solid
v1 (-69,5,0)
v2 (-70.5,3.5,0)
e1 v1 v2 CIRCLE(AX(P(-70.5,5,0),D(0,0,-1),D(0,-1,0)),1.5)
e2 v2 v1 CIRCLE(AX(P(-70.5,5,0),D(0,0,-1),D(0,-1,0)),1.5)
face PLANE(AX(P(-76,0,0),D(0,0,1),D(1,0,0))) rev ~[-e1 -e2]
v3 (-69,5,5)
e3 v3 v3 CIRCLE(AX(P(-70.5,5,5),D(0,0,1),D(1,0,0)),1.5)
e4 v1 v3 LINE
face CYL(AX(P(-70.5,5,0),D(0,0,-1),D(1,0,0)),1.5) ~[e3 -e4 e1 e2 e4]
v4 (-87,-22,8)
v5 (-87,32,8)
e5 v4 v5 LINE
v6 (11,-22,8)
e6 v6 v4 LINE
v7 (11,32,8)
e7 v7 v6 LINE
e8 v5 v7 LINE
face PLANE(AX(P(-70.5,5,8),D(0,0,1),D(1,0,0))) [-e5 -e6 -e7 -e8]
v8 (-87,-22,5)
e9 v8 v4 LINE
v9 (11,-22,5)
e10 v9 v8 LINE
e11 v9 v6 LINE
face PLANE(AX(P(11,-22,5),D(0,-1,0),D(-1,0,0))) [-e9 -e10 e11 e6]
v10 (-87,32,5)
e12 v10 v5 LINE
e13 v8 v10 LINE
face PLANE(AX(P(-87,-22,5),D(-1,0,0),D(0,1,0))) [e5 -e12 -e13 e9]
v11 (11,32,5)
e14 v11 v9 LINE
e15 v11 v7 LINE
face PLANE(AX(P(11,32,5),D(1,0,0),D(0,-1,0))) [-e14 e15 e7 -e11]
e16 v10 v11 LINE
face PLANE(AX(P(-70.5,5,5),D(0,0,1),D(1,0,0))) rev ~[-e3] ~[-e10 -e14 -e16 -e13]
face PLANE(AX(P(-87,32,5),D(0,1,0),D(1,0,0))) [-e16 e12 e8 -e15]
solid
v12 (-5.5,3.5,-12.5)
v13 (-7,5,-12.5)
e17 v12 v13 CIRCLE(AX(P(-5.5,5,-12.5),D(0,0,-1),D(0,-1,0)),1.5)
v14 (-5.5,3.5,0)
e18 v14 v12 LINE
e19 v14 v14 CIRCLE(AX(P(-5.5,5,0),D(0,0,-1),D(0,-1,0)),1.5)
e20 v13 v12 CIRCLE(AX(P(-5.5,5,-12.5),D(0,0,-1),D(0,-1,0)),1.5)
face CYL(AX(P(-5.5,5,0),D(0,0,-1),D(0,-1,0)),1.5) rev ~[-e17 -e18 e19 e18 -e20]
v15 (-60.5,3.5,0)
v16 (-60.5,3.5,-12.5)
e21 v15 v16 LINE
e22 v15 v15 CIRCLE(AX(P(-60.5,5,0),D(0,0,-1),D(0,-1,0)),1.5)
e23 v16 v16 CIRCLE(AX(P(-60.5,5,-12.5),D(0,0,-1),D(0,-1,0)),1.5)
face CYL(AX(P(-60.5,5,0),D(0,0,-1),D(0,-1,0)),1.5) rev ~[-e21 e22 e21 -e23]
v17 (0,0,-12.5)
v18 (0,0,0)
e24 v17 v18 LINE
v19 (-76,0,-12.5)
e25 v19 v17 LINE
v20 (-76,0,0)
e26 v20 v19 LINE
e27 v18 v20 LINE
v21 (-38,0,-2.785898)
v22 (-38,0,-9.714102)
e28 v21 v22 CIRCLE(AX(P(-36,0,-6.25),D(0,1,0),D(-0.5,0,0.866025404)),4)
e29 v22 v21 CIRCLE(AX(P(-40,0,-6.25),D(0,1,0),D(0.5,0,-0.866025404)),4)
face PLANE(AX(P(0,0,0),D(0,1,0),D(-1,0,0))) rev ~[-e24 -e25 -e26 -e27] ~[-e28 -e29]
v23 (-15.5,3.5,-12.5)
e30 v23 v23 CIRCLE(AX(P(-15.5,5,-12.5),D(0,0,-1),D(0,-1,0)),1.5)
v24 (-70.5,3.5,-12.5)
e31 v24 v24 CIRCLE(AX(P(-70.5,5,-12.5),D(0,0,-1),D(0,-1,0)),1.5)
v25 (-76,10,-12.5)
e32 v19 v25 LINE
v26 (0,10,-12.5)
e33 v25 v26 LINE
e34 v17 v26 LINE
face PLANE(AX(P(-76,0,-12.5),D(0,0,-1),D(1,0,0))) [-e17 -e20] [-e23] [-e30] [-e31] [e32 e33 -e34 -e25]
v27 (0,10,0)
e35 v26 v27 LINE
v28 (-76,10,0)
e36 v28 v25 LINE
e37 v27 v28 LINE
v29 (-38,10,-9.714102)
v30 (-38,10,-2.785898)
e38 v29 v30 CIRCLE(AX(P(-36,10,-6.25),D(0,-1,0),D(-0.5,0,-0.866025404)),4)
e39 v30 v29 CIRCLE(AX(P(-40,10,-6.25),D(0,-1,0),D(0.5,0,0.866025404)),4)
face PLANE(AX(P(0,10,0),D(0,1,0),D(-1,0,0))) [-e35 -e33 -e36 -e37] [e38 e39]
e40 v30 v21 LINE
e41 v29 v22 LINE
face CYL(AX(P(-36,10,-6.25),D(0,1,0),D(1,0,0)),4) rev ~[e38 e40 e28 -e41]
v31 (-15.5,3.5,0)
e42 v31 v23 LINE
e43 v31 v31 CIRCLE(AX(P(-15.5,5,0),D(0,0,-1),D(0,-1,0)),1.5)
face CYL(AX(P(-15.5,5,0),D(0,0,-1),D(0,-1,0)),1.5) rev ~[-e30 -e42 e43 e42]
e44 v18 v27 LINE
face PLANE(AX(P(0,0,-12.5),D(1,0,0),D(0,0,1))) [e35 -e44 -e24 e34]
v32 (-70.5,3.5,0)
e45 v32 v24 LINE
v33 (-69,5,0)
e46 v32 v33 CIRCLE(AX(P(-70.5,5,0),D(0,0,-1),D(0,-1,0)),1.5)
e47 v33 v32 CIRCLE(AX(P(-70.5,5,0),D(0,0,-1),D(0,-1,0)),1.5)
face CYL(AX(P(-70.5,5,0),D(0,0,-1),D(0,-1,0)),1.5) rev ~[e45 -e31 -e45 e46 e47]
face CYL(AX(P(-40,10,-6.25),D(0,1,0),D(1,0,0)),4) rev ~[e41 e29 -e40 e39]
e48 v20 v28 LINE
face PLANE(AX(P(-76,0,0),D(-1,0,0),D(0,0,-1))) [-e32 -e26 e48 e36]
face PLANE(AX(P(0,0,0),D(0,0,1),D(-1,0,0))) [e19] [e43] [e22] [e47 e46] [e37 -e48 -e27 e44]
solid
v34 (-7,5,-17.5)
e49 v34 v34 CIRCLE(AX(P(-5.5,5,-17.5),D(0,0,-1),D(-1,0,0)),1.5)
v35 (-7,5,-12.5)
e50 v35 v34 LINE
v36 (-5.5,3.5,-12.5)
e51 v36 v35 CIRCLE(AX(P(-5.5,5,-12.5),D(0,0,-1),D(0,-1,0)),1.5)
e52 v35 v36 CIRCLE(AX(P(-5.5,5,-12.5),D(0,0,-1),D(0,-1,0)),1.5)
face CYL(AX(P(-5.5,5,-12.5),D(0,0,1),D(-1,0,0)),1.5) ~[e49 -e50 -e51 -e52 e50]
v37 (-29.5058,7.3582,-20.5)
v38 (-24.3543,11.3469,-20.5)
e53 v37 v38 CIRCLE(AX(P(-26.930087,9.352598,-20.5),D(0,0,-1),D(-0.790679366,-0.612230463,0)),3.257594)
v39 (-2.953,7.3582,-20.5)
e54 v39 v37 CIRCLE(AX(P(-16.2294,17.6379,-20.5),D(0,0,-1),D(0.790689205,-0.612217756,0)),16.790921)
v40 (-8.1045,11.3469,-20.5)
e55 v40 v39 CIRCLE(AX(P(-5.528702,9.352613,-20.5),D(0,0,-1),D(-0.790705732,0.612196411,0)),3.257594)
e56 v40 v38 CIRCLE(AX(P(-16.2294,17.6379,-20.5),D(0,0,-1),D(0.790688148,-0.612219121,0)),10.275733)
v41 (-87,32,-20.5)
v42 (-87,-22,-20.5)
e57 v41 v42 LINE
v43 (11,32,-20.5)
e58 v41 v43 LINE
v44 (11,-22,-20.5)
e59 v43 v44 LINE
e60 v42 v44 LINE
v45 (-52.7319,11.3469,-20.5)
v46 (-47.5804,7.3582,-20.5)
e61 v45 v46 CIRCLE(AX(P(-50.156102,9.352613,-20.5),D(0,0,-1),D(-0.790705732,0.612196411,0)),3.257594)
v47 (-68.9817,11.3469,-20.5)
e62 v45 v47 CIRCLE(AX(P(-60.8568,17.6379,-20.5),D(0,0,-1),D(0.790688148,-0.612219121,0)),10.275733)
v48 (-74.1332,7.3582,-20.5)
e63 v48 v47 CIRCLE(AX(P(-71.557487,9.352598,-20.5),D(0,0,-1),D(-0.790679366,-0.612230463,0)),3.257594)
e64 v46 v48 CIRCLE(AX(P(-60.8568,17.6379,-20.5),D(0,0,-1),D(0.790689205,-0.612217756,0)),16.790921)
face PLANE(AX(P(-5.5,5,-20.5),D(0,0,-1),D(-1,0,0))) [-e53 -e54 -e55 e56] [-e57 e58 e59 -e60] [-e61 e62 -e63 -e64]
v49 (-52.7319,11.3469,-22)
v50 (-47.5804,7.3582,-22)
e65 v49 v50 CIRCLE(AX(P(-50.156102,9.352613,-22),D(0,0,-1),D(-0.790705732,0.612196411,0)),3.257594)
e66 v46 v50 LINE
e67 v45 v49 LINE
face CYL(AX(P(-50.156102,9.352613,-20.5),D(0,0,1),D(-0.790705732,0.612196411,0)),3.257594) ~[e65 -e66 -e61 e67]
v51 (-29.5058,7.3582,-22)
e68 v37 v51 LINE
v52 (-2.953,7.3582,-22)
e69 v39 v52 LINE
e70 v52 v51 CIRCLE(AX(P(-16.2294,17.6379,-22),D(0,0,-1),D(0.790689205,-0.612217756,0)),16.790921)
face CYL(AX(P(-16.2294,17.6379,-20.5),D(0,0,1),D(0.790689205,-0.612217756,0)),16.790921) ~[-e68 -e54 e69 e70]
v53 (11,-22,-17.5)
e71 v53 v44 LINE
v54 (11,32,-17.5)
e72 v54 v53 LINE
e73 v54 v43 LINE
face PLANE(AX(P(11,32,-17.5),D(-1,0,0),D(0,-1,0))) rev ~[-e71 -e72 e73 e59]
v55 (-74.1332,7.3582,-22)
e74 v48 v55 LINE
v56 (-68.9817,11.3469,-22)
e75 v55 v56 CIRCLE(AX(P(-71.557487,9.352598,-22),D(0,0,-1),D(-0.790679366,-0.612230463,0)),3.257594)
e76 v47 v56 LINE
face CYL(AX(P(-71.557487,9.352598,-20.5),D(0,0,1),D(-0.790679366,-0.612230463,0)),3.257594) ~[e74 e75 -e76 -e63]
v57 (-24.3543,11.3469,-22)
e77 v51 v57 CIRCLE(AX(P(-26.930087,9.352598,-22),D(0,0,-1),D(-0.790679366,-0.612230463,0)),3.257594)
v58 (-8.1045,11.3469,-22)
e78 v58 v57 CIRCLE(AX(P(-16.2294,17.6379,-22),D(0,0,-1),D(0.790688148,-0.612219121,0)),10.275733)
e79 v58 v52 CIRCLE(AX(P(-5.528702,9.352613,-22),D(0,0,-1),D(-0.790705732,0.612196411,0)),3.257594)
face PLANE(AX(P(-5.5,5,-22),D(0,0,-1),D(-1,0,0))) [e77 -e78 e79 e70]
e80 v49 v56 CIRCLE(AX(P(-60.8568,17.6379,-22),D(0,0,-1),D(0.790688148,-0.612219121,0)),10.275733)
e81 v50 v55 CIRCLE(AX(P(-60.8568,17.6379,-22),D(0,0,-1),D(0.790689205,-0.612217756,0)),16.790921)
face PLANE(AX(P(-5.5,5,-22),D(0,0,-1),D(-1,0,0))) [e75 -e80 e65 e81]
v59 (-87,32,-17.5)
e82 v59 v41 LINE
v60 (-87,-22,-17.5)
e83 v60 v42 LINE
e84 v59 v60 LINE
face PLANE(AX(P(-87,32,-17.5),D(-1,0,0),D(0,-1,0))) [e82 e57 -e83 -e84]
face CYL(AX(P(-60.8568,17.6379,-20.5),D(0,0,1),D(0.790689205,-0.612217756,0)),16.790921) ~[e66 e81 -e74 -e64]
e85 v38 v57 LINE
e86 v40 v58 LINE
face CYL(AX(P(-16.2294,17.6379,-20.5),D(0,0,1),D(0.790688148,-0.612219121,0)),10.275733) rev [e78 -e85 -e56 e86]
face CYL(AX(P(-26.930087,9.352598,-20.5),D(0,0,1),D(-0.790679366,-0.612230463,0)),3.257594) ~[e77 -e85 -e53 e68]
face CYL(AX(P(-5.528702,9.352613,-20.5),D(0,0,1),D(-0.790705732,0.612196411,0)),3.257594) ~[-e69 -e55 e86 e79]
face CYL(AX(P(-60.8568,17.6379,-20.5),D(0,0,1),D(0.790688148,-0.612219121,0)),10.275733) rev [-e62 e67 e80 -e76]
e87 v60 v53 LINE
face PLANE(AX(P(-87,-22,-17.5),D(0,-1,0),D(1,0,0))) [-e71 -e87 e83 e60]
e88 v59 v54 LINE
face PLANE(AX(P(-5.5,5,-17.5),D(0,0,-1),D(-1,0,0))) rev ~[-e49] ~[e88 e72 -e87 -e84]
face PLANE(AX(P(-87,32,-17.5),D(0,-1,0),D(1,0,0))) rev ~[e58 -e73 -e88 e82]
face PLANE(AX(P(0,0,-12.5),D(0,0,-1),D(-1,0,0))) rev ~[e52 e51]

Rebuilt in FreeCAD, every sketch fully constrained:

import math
import FreeCAD as App
import Part
import Sketcher

V = App.Vector
Q = App.Units.Quantity


def add_polygon(sketch, points):
    """Adds a closed chain of lines whose ends are joined by coincident constraints."""
    first, n = sketch.GeometryCount, len(points)
    for a, b in zip(points, points[1:] + points[:1]):
        sketch.addGeometry(Part.LineSegment(App.Vector(*a, 0), App.Vector(*b, 0)), False)
    for i in range(n):
        sketch.addConstraint(Sketcher.Constraint("Coincident", first + i, 2, first + (i + 1) % n, 1))

doc = App.newDocument("Part")
body = doc.addObject("PartDesign::Body", "Body")
body.AllowCompound = True

sketch1 = body.newObject("Sketcher::SketchObject", "Sketch")
sketch1.AttachmentSupport = (doc.getObject("XZ_Plane"), [""])
sketch1.MapMode = "FlatFace"
add_polygon(sketch1, [(-76, 0), (0, 0), (0, -12), (-76, -12)])
sketch1.addConstraint([
    Sketcher.Constraint("Horizontal", 0),
    Sketcher.Constraint("Vertical", 1),
    Sketcher.Constraint("Horizontal", 2),
    Sketcher.Constraint("Vertical", 3),
    Sketcher.Constraint("Coincident", 0, 2, -1, 1),
    Sketcher.Constraint("DistanceX", 0, 1, 0, 2, Q("76 mm")),
    Sketcher.Constraint("DistanceY", 1, 2, 1, 1, Q("12.5 mm")),
])
pad1 = body.newObject("PartDesign::Pad", "Pad")
pad1.Profile = sketch1
pad1.Length = 10
pad1.Reversed = True

sketch2 = body.newObject("Sketcher::SketchObject", "Sketch001")
sketch2.AttachmentSupport = (doc.getObject("XZ_Plane"), [""])
sketch2.MapMode = "FlatFace"
sketch2.AttachmentOffset = App.Placement(V(0, 0, -10), App.Rotation())
sketch2.addGeometry([
    Part.ArcOfCircle(Part.Circle(V(-40, -6.2, 0), V(0, 0, 1), 4), math.radians(60), math.radians(300)),
    Part.ArcOfCircle(Part.Circle(V(-36, -6.2, 0), V(0, 0, 1), 4), math.radians(-120), math.radians(120)),
], False)
sketch2.addConstraint([
    Sketcher.Constraint("Coincident", 0, 1, 1, 2),
    Sketcher.Constraint("Coincident", 1, 1, 0, 2),
    Sketcher.Constraint("Equal", 0, 1),
    Sketcher.Constraint("Horizontal", 0, 3, 1, 3),
    Sketcher.Constraint("Radius", 0, Q("4 mm")),
    Sketcher.Constraint("DistanceX", 0, 1, 1, 3, Q("2 mm")),
    Sketcher.Constraint("DistanceX", 0, 3, -1, 1, Q("40 mm")),
    Sketcher.Constraint("DistanceY", 0, 3, -1, 1, Q("6.25 mm")),
])
pocket1 = body.newObject("PartDesign::Pocket", "Pocket")
pocket1.Profile = sketch2
pocket1.Length = 10
pocket1.Reversed = True

sketch3 = body.newObject("Sketcher::SketchObject", "Sketch002")
sketch3.AttachmentSupport = (doc.getObject("XY_Plane"), [""])
sketch3.MapMode = "FlatFace"
sketch3.addGeometry([
    Part.Circle(V(-70.5, 5, 0), V(0, 0, 1), 1.5),
    Part.Circle(V(-60.5, 5, 0), V(0, 0, 1), 1.5),
], False)
sketch3.addConstraint([
    Sketcher.Constraint("Equal", 0, 1),
    Sketcher.Constraint("Horizontal", 0, 3, 1, 3),
    Sketcher.Constraint("Diameter", 0, Q("3 mm")),
    Sketcher.Constraint("DistanceY", -1, 1, 0, 3, Q("5 mm")),
    Sketcher.Constraint("DistanceX", 0, 3, 1, 3, Q("10 mm")),
    Sketcher.Constraint("DistanceX", 0, 3, -1, 1, Q("70.5 mm")),
])
doc.recompute()
hole = body.newObject("PartDesign::Hole", "Hole")
hole.Profile = sketch3
hole.ThreadType = "None"
hole.Diameter = 3
hole.DepthType = "ThroughAll"

sketch4 = body.newObject("Sketcher::SketchObject", "Sketch003")
sketch4.AttachmentSupport = (doc.getObject("XY_Plane"), [""])
sketch4.MapMode = "FlatFace"
sketch4.addGeometry([
    Part.Circle(V(-15.5, 5, 0), V(0, 0, 1), 1.5),
    Part.Circle(V(-5.5, 5, 0), V(0, 0, 1), 1.5),
], False)
sketch4.addConstraint([
    Sketcher.Constraint("Equal", 0, 1),
    Sketcher.Constraint("Horizontal", 0, 3, 1, 3),
    Sketcher.Constraint("Diameter", 0, Q("3 mm")),
    Sketcher.Constraint("DistanceY", -1, 1, 0, 3, Q("5 mm")),
    Sketcher.Constraint("DistanceX", 0, 3, 1, 3, Q("10 mm")),
    Sketcher.Constraint("DistanceX", 0, 3, -1, 1, Q("15.5 mm")),
])
doc.recompute()
hole2 = body.newObject("PartDesign::Hole", "Hole001")
hole2.Profile = sketch4
hole2.ThreadType = "None"
hole2.Diameter = 3
hole2.DepthType = "ThroughAll"

sketch5 = body.newObject("Sketcher::SketchObject", "Sketch004")
sketch5.AttachmentSupport = (doc.getObject("XY_Plane"), [""])
sketch5.MapMode = "FlatFace"
sketch5.addGeometry(Part.Circle(V(-70.5, 5, 0), V(0, 0, 1), 1.5), False)
sketch5.addConstraint([
    Sketcher.Constraint("Diameter", 0, Q("3 mm")),
    Sketcher.Constraint("DistanceY", -1, 1, 0, 3, Q("5 mm")),
    Sketcher.Constraint("DistanceX", 0, 3, -1, 1, Q("70.5 mm")),
])
pad2 = body.newObject("PartDesign::Pad", "Pad001")
pad2.Profile = sketch5
pad2.Length = 5

sketch6 = body.newObject("Sketcher::SketchObject", "Sketch005")
sketch6.AttachmentSupport = (doc.getObject("XY_Plane"), [""])
sketch6.MapMode = "FlatFace"
sketch6.AttachmentOffset = App.Placement(V(0, 0, 5), App.Rotation())
add_polygon(sketch6, [(11, 32), (-87, 32), (-87, -22), (11, -22)])
sketch6.addConstraint([
    Sketcher.Constraint("Horizontal", 0),
    Sketcher.Constraint("Vertical", 1),
    Sketcher.Constraint("Horizontal", 2),
    Sketcher.Constraint("Vertical", 3),
    Sketcher.Constraint("DistanceX", 0, 2, 0, 1, Q("98 mm")),
    Sketcher.Constraint("DistanceY", 1, 2, 1, 1, Q("54 mm")),
    Sketcher.Constraint("DistanceX", 0, 2, -1, 1, Q("87 mm")),
    Sketcher.Constraint("DistanceY", -1, 1, 0, 2, Q("32 mm")),
])
pad3 = body.newObject("PartDesign::Pad", "Pad002")
pad3.Profile = sketch6
pad3.Length = 3

sketch7 = body.newObject("Sketcher::SketchObject", "Sketch006")
sketch7.AttachmentSupport = (doc.getObject("XY_Plane"), [""])
sketch7.MapMode = "FlatFace"
sketch7.AttachmentOffset = App.Placement(V(0, 0, -12.5), App.Rotation())
sketch7.addGeometry(Part.Circle(V(-5.5, 5, 0), V(0, 0, 1), 1.5), False)
sketch7.addConstraint([
    Sketcher.Constraint("Diameter", 0, Q("3 mm")),
    Sketcher.Constraint("DistanceY", -1, 1, 0, 3, Q("5 mm")),
    Sketcher.Constraint("DistanceX", 0, 3, -1, 1, Q("5.5 mm")),
])
pad4 = body.newObject("PartDesign::Pad", "Pad003")
pad4.Profile = sketch7
pad4.Length = 5
pad4.Reversed = True

sketch8 = body.newObject("Sketcher::SketchObject", "Sketch007")
sketch8.AttachmentSupport = (doc.getObject("XY_Plane"), [""])
sketch8.MapMode = "FlatFace"
sketch8.AttachmentOffset = App.Placement(V(0, 0, -17.5), App.Rotation())
add_polygon(sketch8, [(11, -22), (-87, -22), (-87, 32), (11, 32)])
sketch8.addConstraint([
    Sketcher.Constraint("Horizontal", 0),
    Sketcher.Constraint("Vertical", 1),
    Sketcher.Constraint("Horizontal", 2),
    Sketcher.Constraint("Vertical", 3),
    Sketcher.Constraint("DistanceX", 0, 2, 0, 1, Q("98 mm")),
    Sketcher.Constraint("DistanceY", 1, 1, 1, 2, Q("54 mm")),
    Sketcher.Constraint("DistanceX", 0, 2, -1, 1, Q("87 mm")),
    Sketcher.Constraint("DistanceY", 0, 2, -1, 1, Q("22 mm")),
])
pad5 = body.newObject("PartDesign::Pad", "Pad004")
pad5.Profile = sketch8
pad5.Length = 3
pad5.Reversed = True

sketch9 = body.newObject("Sketcher::SketchObject", "Sketch008")
sketch9.AttachmentSupport = (doc.getObject("XY_Plane"), [""])
sketch9.MapMode = "FlatFace"
sketch9.AttachmentOffset = App.Placement(V(0, 0, -20.5), App.Rotation())
sketch9.addGeometry([
    Part.ArcOfCircle(Part.Circle(V(-5.5, 9.4, 0), V(0, 0, 1), 3.3), math.radians(-38), math.radians(142)),
    Part.ArcOfCircle(Part.Circle(V(-16.2, 17.6, 0), V(0, 0, 1), 16.8), math.radians(-142), math.radians(-38)),
    Part.ArcOfCircle(Part.Circle(V(-26.9, 9.4, 0), V(0, 0, 1), 3.3), math.radians(38), math.radians(218)),
    Part.ArcOfCircle(Part.Circle(V(-16.2, 17.6, 0), V(0, 0, 1), 10.3), math.radians(-142), math.radians(-38)),
    Part.ArcOfCircle(Part.Circle(V(-50.2, 9.4, 0), V(0, 0, 1), 3.3), math.radians(-38), math.radians(142)),
    Part.ArcOfCircle(Part.Circle(V(-60.9, 17.6, 0), V(0, 0, 1), 16.8), math.radians(-142), math.radians(-38)),
    Part.ArcOfCircle(Part.Circle(V(-71.6, 9.4, 0), V(0, 0, 1), 3.3), math.radians(38), math.radians(218)),
    Part.ArcOfCircle(Part.Circle(V(-60.9, 17.6, 0), V(0, 0, 1), 10.3), math.radians(-142), math.radians(-38)),
], False)
sketch9.addConstraint([
    Sketcher.Constraint("Tangent", 0, 1, 1, 2),
    Sketcher.Constraint("Tangent", 1, 1, 2, 2),
    Sketcher.Constraint("Tangent", 2, 1, 3, 1),
    Sketcher.Constraint("Tangent", 3, 2, 0, 2),
    Sketcher.Constraint("Tangent", 4, 1, 5, 2),
    Sketcher.Constraint("Tangent", 5, 1, 6, 2),
    Sketcher.Constraint("Tangent", 6, 1, 7, 1),
    Sketcher.Constraint("Tangent", 7, 2, 4, 2),
    Sketcher.Constraint("Coincident", 3, 3, 1, 3),
    Sketcher.Constraint("Coincident", 7, 3, 5, 3),
    Sketcher.Constraint("Equal", 2, 4),
    Sketcher.Constraint("Equal", 1, 5),
    Sketcher.Constraint("Horizontal", 0, 3, 2, 3),
    Sketcher.Constraint("Horizontal", 2, 3, 4, 3),
    Sketcher.Constraint("Horizontal", 3, 3, 5, 3),
    Sketcher.Constraint("Horizontal", 4, 3, 6, 3),
    Sketcher.Constraint("Radius", 1, Q("16.791 mm")),
    Sketcher.Constraint("Radius", 0, Q("3.2576 mm")),
    Sketcher.Constraint("DistanceX", 2, 3, -1, 1, Q("26.93 mm")),
    Sketcher.Constraint("DistanceY", -1, 1, 1, 3, Q("17.638 mm")),
    Sketcher.Constraint("DistanceX", 4, 3, -1, 1, Q("50.156 mm")),
    Sketcher.Constraint("DistanceX", 0, 1, -1, 1, Q("2.953 mm")),
])
pad6 = body.newObject("PartDesign::Pad", "Pad005")
pad6.Profile = sketch9
pad6.Length = 1.5
pad6.Reversed = True

doc.recompute()
